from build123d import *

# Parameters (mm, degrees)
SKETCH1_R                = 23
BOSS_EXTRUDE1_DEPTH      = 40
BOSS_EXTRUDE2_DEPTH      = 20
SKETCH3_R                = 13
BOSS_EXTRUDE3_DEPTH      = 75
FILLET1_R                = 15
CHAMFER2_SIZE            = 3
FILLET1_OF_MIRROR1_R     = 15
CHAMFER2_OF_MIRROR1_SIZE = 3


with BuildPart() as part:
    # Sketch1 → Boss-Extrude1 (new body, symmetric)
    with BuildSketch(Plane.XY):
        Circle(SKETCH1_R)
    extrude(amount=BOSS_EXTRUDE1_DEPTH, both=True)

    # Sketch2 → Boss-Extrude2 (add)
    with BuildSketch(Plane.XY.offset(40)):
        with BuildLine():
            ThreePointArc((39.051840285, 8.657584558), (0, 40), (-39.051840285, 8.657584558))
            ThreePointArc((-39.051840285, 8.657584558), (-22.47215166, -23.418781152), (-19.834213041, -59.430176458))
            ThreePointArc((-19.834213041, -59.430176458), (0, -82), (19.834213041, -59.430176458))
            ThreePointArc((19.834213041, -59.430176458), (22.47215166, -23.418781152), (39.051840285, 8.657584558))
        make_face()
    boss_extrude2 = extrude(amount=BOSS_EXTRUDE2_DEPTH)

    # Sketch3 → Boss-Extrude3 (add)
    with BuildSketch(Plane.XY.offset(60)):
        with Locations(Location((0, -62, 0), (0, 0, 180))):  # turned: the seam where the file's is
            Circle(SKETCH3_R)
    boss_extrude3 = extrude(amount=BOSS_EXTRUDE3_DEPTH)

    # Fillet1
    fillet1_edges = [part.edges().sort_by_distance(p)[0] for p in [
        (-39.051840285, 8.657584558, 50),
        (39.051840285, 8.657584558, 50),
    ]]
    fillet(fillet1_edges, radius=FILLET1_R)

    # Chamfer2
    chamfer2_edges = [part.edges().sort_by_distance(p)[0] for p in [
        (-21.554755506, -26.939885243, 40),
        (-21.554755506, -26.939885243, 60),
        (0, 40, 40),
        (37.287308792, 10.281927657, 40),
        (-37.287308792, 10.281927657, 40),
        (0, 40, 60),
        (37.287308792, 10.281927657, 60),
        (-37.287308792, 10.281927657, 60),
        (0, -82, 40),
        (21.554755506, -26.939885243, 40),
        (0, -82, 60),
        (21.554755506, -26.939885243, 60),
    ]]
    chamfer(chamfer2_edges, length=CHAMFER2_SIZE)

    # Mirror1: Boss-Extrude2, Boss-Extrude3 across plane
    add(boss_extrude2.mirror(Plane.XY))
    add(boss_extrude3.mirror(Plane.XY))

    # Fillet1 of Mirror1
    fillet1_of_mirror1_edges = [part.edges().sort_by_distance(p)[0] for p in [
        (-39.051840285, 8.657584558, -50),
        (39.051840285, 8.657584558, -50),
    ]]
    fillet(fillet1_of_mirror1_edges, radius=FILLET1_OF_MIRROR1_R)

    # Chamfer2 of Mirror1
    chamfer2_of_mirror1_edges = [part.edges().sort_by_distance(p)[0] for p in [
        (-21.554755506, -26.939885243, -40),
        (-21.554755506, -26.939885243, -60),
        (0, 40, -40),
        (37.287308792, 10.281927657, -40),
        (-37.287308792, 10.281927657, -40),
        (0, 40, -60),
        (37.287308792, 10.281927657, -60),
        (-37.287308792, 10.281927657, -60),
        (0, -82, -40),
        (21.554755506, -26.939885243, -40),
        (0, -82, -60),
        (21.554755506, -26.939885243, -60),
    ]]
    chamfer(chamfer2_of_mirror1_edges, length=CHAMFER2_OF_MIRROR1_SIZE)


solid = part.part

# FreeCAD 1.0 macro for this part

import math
import FreeCAD as App
import Part
import Sketcher

V = App.Vector


def edges_at(feature, points):
    """Names of the edges that pass closest to the given points."""
    edges = feature.Shape.Edges
    near = lambda p: min(range(len(edges)), key=lambda i: edges[i].distToShape(Part.Vertex(*p))[0])
    return sorted({f"Edge{near(p) + 1}" for p in points})

doc = App.newDocument("Part")
body = doc.addObject("PartDesign::Body", "Body")

# Sketch on XY plane
sketch1 = body.newObject("Sketcher::SketchObject", "Sketch")
sketch1.AttachmentSupport = (doc.getObject("XY_Plane"), [""])
sketch1.MapMode = "FlatFace"
sketch1.addGeometry(Part.Circle(V(0, 0, 0), V(0, 0, 1), 23), False)
sketch1.addConstraint([
    Sketcher.Constraint("Coincident", 0, 3, -1, 1),
    Sketcher.Constraint("Diameter", 0, 46.0),
])
pad1 = body.newObject("PartDesign::Pad", "Pad")
pad1.Profile = sketch1
pad1.Length = 80
pad1.Midplane = True

# Sketch on XY plane
sketch2 = body.newObject("Sketcher::SketchObject", "Sketch001")
sketch2.AttachmentSupport = (doc.getObject("XY_Plane"), [""])
sketch2.MapMode = "FlatFace"
sketch2.AttachmentOffset = App.Placement(V(0, 0, 40), App.Rotation())
sketch2.addGeometry([
    Part.ArcOfCircle(Part.Circle(V(0, 0, 0), V(0, 0, 1), 40), math.radians(13), math.radians(167)),
    Part.ArcOfCircle(Part.Circle(V(-109, -48, 0), V(0, 0, 1), 90), math.radians(-7), math.radians(39)),
    Part.ArcOfCircle(Part.Circle(V(0, -62, 0), V(0, 0, 1), 20), math.radians(173), math.radians(367)),
    Part.ArcOfCircle(Part.Circle(V(109, -48, 0), V(0, 0, 1), 90), math.radians(141), math.radians(187)),
], False)
sketch2.addConstraint([
    Sketcher.Constraint("Coincident", 0, 2, 1, 2),
    Sketcher.Constraint("Tangent", 1, 1, 2, 1),
    Sketcher.Constraint("Tangent", 2, 2, 3, 2),
    Sketcher.Constraint("Coincident", 3, 1, 0, 1),
    Sketcher.Constraint("Coincident", 0, 3, -1, 1),
    Sketcher.Constraint("Equal", 1, 3),
    Sketcher.Constraint("Symmetric", 1, 3, 3, 3, -2),
    Sketcher.Constraint("Radius", 0, 40.0),
    Sketcher.Constraint("Radius", 1, 90.0),
    Sketcher.Constraint("Radius", 2, 20.0),
    Sketcher.Constraint("DistanceY", 2, 3, -1, 1, 62.0),
    Sketcher.Constraint("DistanceX", 1, 3, -1, 1, 109.088172),
])
pad2 = body.newObject("PartDesign::Pad", "Pad001")
pad2.Profile = sketch2
pad2.Length = 20

# Sketch on XY plane
sketch3 = body.newObject("Sketcher::SketchObject", "Sketch002")
sketch3.AttachmentSupport = (doc.getObject("XY_Plane"), [""])
sketch3.MapMode = "FlatFace"
sketch3.AttachmentOffset = App.Placement(V(0, 0, 60), App.Rotation())
sketch3.addGeometry(Part.Circle(V(0, -62, 0), V(0, 0, 1), 13), False)
sketch3.addConstraint([
    Sketcher.Constraint("PointOnObject", 0, 3, -2),
    Sketcher.Constraint("Diameter", 0, 26.0),
    Sketcher.Constraint("DistanceY", 0, 3, -1, 1, 62.0),
])
pad3 = body.newObject("PartDesign::Pad", "Pad002")
pad3.Profile = sketch3
pad3.Length = 75
doc.recompute()

fillet = body.newObject("PartDesign::Fillet", "Fillet")
fillet.Base = (pad3, edges_at(pad3, [(-39.052, 8.658, 50), (39.052, 8.658, 50)]))
fillet.Radius = 15
doc.recompute()

chamfer = body.newObject("PartDesign::Chamfer", "Chamfer")
chamfer.Base = (fillet, edges_at(fillet, [
    (-21.555, -26.94, 40),
    (-21.555, -26.94, 60),
    (0, 40, 40),
    (37.287, 10.282, 40),
    (-37.287, 10.282, 40),
    (0, 40, 60),
    (37.287, 10.282, 60),
    (-37.287, 10.282, 60),
    (0, -82, 40),
    (21.555, -26.94, 40),
    (0, -82, 60),
    (21.555, -26.94, 60),
]))
chamfer.Size = 3
doc.recompute()

mirrored = body.newObject("PartDesign::Mirrored", "Mirrored")
mirrored.Originals = [pad2, pad3]
mirrored.MirrorPlane = (doc.getObject("XY_Plane"), [""])
body.Tip = mirrored
doc.recompute()

fillet2 = body.newObject("PartDesign::Fillet", "Fillet001")
fillet2.Base = (mirrored, edges_at(mirrored, [(-39.052, 8.658, -50), (39.052, 8.658, -50)]))
fillet2.Radius = 15
doc.recompute()

chamfer2 = body.newObject("PartDesign::Chamfer", "Chamfer001")
chamfer2.Base = (fillet2, edges_at(fillet2, [
    (-21.555, -26.94, -40),
    (-21.555, -26.94, -60),
    (0, 40, -40),
    (37.287, 10.282, -40),
    (-37.287, 10.282, -40),
    (0, 40, -60),
    (37.287, 10.282, -60),
    (-37.287, 10.282, -60),
    (0, -82, -40),
    (21.555, -26.94, -40),
    (0, -82, -60),
    (21.555, -26.94, -60),
]))
chamfer2.Size = 3

doc.recompute()
